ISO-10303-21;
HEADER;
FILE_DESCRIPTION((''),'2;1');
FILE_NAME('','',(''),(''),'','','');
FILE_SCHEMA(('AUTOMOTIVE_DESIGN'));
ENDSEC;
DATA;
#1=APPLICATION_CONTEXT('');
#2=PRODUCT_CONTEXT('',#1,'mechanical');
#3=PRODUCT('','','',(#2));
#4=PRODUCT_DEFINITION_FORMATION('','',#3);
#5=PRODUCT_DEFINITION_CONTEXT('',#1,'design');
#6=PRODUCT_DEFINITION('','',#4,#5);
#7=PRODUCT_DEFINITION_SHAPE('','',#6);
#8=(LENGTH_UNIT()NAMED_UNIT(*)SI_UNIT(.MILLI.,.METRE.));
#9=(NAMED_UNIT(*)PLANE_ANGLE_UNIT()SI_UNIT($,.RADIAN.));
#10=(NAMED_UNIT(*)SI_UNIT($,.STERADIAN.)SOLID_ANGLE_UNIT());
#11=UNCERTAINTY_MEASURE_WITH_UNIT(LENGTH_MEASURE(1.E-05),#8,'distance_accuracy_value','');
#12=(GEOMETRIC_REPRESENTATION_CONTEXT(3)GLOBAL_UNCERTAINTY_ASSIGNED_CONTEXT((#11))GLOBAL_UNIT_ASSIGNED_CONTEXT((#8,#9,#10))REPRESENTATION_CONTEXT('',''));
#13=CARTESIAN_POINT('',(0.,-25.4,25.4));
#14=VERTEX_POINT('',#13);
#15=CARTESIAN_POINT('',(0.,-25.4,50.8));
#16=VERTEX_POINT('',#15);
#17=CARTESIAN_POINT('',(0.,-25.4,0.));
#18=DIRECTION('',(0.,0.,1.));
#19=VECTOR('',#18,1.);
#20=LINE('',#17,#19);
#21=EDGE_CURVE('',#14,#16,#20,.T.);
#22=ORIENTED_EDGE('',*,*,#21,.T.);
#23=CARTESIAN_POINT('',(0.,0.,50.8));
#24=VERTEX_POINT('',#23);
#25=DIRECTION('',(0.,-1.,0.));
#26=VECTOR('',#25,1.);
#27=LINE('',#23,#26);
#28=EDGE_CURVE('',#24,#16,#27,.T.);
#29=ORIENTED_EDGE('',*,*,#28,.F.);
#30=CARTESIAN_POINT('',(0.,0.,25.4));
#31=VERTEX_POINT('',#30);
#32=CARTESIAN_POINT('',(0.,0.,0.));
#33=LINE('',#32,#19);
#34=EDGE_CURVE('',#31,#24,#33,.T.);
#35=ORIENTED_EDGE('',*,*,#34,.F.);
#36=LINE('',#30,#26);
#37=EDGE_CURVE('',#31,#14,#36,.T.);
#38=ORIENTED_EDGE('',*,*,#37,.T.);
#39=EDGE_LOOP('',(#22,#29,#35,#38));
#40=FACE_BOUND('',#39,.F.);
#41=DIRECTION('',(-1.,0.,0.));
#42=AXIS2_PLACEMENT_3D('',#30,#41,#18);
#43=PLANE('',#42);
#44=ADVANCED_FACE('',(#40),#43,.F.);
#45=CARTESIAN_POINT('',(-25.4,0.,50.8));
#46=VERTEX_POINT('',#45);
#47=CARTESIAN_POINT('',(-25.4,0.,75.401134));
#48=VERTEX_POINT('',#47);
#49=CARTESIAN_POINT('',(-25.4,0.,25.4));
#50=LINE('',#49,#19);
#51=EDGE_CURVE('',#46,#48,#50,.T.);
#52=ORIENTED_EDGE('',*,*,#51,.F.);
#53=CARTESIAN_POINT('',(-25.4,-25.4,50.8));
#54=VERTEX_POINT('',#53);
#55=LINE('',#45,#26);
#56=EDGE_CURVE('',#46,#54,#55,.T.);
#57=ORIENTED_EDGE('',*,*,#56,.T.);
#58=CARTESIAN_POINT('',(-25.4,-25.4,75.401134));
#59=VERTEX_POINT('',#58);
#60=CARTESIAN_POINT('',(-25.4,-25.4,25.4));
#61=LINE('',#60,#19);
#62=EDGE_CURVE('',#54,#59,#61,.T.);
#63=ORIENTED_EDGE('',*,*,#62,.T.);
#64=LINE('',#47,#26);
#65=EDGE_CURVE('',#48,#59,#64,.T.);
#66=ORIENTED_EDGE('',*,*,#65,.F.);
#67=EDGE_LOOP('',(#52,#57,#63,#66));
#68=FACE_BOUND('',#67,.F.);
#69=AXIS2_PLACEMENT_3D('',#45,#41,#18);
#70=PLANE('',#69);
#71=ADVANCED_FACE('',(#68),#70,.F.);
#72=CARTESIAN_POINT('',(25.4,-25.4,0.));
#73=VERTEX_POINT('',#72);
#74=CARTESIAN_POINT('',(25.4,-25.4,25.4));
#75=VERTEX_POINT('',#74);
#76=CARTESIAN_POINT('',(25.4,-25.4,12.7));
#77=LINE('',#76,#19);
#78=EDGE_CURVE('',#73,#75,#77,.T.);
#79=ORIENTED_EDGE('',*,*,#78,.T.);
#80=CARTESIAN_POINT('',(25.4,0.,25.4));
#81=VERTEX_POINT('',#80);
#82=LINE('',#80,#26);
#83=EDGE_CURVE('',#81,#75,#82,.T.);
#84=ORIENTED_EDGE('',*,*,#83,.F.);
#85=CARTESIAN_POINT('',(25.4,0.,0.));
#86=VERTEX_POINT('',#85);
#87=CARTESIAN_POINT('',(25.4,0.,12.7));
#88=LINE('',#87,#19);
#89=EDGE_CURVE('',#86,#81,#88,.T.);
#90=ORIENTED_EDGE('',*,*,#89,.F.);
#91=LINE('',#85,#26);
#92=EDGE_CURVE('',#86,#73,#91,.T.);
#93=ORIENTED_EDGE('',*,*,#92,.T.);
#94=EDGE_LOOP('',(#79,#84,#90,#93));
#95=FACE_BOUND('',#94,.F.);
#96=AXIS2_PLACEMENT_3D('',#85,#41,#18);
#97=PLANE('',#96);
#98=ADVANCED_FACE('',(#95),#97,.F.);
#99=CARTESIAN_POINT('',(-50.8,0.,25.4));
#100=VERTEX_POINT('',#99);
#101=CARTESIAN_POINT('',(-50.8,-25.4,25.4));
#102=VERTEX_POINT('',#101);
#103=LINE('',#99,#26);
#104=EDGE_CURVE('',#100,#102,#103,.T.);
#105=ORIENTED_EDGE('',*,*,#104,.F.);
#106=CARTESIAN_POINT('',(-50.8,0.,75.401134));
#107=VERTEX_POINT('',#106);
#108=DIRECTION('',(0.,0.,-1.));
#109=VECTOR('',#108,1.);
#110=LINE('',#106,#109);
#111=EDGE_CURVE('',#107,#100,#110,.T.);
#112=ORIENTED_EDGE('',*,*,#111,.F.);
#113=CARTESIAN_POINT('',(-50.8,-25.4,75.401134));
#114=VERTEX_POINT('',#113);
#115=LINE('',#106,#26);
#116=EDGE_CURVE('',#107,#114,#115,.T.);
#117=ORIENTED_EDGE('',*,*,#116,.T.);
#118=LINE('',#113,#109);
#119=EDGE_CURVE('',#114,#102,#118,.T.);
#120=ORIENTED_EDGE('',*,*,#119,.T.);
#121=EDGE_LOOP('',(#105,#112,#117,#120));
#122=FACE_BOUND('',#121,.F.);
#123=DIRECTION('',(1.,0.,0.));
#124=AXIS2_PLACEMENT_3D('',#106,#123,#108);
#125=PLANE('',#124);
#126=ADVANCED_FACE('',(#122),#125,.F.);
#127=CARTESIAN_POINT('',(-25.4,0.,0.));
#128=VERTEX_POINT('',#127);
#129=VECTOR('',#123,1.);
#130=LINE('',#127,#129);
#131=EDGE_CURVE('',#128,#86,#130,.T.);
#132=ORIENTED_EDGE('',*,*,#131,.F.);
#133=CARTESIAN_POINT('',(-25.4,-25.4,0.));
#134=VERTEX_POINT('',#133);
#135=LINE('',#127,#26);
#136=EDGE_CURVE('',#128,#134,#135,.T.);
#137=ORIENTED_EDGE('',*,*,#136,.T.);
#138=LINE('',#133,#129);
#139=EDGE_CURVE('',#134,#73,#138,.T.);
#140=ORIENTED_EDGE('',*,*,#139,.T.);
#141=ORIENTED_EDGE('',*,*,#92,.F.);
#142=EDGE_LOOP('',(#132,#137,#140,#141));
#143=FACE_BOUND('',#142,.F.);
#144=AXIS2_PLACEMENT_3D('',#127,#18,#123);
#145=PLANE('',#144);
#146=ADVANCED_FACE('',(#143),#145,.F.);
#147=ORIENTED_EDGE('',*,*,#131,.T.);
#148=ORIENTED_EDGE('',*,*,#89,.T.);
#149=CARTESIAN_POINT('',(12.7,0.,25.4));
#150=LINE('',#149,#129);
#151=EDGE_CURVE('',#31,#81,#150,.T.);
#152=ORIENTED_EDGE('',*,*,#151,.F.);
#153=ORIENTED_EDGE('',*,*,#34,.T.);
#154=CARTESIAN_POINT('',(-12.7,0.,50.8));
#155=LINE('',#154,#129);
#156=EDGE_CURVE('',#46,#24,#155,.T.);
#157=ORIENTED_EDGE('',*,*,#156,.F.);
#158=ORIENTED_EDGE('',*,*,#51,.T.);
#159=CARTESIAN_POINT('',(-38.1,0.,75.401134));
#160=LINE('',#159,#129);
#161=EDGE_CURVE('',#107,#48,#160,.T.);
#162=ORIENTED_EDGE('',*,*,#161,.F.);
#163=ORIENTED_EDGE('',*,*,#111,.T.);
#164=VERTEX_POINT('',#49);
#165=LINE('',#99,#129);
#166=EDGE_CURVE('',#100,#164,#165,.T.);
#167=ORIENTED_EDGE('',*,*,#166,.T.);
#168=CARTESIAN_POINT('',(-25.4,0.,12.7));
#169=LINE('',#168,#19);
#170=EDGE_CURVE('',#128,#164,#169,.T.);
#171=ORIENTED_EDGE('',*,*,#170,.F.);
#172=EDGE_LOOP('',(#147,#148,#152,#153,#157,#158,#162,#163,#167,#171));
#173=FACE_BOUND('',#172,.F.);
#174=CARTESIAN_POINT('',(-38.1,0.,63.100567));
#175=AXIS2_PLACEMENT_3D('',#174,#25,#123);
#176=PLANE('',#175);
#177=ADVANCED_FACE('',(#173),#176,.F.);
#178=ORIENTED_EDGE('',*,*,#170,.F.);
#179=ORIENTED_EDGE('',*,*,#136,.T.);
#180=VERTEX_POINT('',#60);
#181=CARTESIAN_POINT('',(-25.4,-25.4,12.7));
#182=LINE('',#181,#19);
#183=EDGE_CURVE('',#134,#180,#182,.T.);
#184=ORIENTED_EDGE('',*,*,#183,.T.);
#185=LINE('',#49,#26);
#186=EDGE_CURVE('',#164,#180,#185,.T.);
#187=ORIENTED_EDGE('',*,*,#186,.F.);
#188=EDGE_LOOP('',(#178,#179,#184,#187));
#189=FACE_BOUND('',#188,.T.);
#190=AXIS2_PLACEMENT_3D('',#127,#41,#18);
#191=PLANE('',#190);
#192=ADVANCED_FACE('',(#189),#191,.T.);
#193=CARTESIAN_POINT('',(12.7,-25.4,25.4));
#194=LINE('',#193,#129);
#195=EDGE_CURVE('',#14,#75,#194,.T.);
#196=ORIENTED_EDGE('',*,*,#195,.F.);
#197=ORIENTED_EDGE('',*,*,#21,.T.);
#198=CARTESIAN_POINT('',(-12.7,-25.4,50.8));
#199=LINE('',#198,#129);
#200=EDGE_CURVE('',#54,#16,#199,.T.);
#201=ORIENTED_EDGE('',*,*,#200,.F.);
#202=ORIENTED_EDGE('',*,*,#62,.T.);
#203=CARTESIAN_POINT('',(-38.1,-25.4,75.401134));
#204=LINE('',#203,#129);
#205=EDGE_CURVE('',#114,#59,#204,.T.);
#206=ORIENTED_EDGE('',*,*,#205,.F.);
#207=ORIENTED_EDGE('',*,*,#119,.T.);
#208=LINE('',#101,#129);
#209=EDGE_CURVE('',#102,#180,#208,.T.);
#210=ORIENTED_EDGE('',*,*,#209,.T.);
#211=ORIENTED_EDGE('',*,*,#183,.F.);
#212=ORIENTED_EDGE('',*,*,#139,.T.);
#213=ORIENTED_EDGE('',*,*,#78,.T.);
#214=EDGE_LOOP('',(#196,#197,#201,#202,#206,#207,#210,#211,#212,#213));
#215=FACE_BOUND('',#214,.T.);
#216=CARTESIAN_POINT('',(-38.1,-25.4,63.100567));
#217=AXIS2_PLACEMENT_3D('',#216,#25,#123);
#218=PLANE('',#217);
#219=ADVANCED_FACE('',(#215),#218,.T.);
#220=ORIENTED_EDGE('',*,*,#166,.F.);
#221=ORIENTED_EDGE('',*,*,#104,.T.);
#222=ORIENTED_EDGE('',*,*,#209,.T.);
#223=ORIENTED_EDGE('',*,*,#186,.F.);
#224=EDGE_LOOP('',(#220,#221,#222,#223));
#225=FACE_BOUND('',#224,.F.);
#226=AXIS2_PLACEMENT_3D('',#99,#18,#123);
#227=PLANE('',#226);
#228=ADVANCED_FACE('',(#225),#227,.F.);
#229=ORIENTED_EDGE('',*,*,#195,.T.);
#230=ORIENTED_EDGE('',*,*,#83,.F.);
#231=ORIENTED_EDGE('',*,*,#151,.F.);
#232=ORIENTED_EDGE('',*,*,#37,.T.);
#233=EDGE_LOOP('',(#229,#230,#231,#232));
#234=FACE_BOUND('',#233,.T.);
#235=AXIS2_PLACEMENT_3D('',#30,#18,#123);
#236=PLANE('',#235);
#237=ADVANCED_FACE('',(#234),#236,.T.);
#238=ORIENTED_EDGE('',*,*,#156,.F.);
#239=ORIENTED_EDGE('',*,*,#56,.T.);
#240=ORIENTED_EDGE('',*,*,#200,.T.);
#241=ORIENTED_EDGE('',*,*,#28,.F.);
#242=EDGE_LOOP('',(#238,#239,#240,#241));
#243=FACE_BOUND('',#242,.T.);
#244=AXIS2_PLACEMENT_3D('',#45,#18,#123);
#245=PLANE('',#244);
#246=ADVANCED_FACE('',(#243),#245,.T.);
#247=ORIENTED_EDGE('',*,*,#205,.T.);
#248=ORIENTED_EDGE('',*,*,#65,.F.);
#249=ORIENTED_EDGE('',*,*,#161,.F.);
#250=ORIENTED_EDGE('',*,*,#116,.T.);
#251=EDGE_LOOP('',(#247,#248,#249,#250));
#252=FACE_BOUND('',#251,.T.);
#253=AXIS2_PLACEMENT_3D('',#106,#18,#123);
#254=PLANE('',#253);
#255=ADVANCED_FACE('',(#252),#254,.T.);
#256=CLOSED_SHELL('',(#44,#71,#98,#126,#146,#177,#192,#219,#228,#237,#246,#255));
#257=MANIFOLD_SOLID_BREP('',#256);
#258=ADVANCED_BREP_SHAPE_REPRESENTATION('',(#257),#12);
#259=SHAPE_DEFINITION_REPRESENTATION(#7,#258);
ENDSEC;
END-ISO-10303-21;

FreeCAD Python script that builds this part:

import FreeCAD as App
import Part
import Sketcher
from FreeCAD import Vector
Q = App.Units.Quantity

doc = App.newDocument("Part")
body = doc.addObject("PartDesign::Body", "Body")

sketch1 = body.newObject("Sketcher::SketchObject", "Sketch")
sketch1.AttachmentSupport = (doc.getObject("XZ_Plane"), [""])
sketch1.MapMode = "FlatFace"
sketch1.addGeometry([
    Part.LineSegment(Vector(-51, 25, 0), Vector(-25, 25, 0)),
    Part.LineSegment(Vector(-25, 25, 0), Vector(-25, 0, 0)),
    Part.LineSegment(Vector(-25, 0, 0), Vector(25, 0, 0)),
    Part.LineSegment(Vector(25, 0, 0), Vector(25, 25, 0)),
    Part.LineSegment(Vector(25, 25, 0), Vector(0, 25, 0)),
    Part.LineSegment(Vector(0, 25, 0), Vector(0, 51, 0)),
    Part.LineSegment(Vector(0, 51, 0), Vector(-25, 51, 0)),
    Part.LineSegment(Vector(-25, 51, 0), Vector(-25, 75, 0)),
    Part.LineSegment(Vector(-25, 75, 0), Vector(-51, 75, 0)),
    Part.LineSegment(Vector(-51, 75, 0), Vector(-51, 25, 0)),
], False)
sketch1.addConstraint([
    Sketcher.Constraint("Coincident", 0, 2, 1, 1),
    Sketcher.Constraint("Coincident", 1, 2, 2, 1),
    Sketcher.Constraint("Coincident", 2, 2, 3, 1),
    Sketcher.Constraint("Coincident", 3, 2, 4, 1),
    Sketcher.Constraint("Coincident", 4, 2, 5, 1),
    Sketcher.Constraint("Coincident", 5, 2, 6, 1),
    Sketcher.Constraint("Coincident", 6, 2, 7, 1),
    Sketcher.Constraint("Coincident", 7, 2, 8, 1),
    Sketcher.Constraint("Coincident", 8, 2, 9, 1),
    Sketcher.Constraint("Coincident", 9, 2, 0, 1),
    Sketcher.Constraint("Horizontal", 0),
    Sketcher.Constraint("Vertical", 1),
    Sketcher.Constraint("Horizontal", 2),
    Sketcher.Constraint("Vertical", 3),
    Sketcher.Constraint("Horizontal", 4),
    Sketcher.Constraint("Vertical", 5),
    Sketcher.Constraint("Horizontal", 6),
    Sketcher.Constraint("Vertical", 7),
    Sketcher.Constraint("Horizontal", 8),
    Sketcher.Constraint("Vertical", 9),
    Sketcher.Constraint("Symmetric", 1, 2, 2, 2, -1, 1),
    Sketcher.Constraint("PointOnObject", 4, 2, -2),
    Sketcher.Constraint("Horizontal", 0, 2, 3, 2),
    Sketcher.Constraint("Vertical", 1, 2, 6, 2),
    Sketcher.Constraint("Equal", 0, 4),
    Sketcher.Constraint("Equal", 8, 1),
    Sketcher.Constraint("Equal", 3, 5),
    Sketcher.Constraint("DistanceX", 0, 1, 0, 2, Q("1 in")),
    Sketcher.Constraint("DistanceY", 7, 1, 7, 2, 24.601135),
])
pad1 = body.newObject("PartDesign::Pad", "Pad")
pad1.Profile = sketch1
pad1.Length = Q("1 in")

doc.recompute()
